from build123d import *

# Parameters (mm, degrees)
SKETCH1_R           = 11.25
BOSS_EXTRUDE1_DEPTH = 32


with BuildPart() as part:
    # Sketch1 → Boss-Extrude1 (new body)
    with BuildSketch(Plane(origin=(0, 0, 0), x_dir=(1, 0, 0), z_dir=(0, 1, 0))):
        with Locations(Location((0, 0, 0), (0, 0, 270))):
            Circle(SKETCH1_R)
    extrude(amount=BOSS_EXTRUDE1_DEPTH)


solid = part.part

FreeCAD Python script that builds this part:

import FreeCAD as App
import Part
import Sketcher

doc = App.newDocument("Part")
body = doc.addObject("PartDesign::Body", "Body")

# Sketch on XZ plane
sketch1 = body.newObject("Sketcher::SketchObject", "Sketch")
sketch1.AttachmentSupport = (doc.getObject("XZ_Plane"), [""])
sketch1.MapMode = "FlatFace"
sketch1.addGeometry(Part.Circle(App.Vector(0, 0, 0), App.Vector(0, 0, 1), 11), False)
sketch1.addConstraint(Sketcher.Constraint("Coincident", 0, 3, -1, 1))
sketch1.addConstraint(Sketcher.Constraint("Diameter", 0, 22.5))
pad1 = body.newObject("PartDesign::Pad", "Pad")
pad1.Profile = sketch1
pad1.Length = 32
pad1.Reversed = True

doc.recompute()
